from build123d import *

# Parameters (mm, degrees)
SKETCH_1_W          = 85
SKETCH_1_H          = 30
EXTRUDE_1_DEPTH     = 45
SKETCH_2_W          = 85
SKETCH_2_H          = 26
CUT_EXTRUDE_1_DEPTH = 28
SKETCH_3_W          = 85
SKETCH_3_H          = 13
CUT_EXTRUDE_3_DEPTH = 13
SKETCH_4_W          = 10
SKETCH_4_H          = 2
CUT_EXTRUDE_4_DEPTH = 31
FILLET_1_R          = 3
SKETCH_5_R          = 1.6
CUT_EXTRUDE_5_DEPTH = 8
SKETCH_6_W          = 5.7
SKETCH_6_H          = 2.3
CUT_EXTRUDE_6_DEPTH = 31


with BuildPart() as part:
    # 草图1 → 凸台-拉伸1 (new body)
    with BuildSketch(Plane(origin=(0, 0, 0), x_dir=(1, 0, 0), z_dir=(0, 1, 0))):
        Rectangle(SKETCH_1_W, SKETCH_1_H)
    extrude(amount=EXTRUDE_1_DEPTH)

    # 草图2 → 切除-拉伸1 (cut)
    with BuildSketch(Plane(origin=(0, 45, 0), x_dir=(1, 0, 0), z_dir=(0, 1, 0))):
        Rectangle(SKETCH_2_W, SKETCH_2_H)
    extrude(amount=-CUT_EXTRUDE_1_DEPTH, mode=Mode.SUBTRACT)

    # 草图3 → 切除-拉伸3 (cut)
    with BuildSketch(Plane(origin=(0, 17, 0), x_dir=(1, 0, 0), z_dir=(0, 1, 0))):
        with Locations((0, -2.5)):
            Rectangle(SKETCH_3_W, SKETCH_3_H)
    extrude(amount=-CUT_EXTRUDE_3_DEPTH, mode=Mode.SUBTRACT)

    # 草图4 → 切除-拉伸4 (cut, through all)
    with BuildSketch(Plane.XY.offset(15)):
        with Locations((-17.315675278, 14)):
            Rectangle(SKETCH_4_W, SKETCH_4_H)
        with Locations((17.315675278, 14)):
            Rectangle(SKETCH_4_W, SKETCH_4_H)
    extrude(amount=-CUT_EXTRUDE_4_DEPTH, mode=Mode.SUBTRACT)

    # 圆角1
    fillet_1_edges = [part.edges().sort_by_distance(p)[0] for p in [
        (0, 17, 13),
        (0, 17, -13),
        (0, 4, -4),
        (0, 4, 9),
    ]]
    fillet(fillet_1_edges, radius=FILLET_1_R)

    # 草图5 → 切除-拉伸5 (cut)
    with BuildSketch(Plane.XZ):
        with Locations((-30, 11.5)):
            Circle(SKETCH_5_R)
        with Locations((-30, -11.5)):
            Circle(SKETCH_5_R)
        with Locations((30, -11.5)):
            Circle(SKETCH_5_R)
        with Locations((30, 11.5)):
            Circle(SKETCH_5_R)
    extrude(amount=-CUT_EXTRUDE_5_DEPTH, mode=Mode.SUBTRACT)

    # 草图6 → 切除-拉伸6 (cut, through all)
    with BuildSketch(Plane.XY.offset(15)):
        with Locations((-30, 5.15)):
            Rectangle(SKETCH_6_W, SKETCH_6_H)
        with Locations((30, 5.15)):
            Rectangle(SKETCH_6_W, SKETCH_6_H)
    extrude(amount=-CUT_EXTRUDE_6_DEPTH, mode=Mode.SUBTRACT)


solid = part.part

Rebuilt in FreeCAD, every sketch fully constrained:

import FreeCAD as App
import Part
import Sketcher


def edges_at(feature, points):
    """Names of the edges that pass closest to the given points."""
    edges = feature.Shape.Edges
    near = lambda p: min(range(len(edges)), key=lambda i: edges[i].distToShape(Part.Vertex(*p))[0])
    return sorted({f"Edge{near(p) + 1}" for p in points})


def add_polygon(sketch, points):
    """Adds a closed chain of lines whose ends are joined by coincident constraints."""
    first, n = sketch.GeometryCount, len(points)
    for a, b in zip(points, points[1:] + points[:1]):
        sketch.addGeometry(Part.LineSegment(App.Vector(*a, 0), App.Vector(*b, 0)), False)
    for i in range(n):
        sketch.addConstraint(Sketcher.Constraint("Coincident", first + i, 2, first + (i + 1) % n, 1))

doc = App.newDocument("Part")
body = doc.addObject("PartDesign::Body", "Body")

# Sketch on XZ plane
sketch1 = body.newObject("Sketcher::SketchObject", "Sketch")
sketch1.AttachmentSupport = (doc.getObject("XZ_Plane"), [""])
sketch1.MapMode = "FlatFace"
add_polygon(sketch1, [(-42.5, -15), (-42.5, 15), (42.5, 15), (42.5, -15)])  # lines 0-3
sketch1.addConstraint(Sketcher.Constraint("Vertical", 0))
sketch1.addConstraint(Sketcher.Constraint("Horizontal", 1))
sketch1.addConstraint(Sketcher.Constraint("Vertical", 2))
sketch1.addConstraint(Sketcher.Constraint("Horizontal", 3))
sketch1.addConstraint(Sketcher.Constraint("Symmetric", 0, 2, 2, 2, -1, 1))
sketch1.addConstraint(Sketcher.Constraint("DistanceX", 1, 1, 1, 2, 85.0))
sketch1.addConstraint(Sketcher.Constraint("DistanceY", 0, 1, 0, 2, 30.0))
pad1 = body.newObject("PartDesign::Pad", "Pad")
pad1.Profile = sketch1
pad1.Length = 45
pad1.Reversed = True

# Sketch on XZ plane
sketch2 = body.newObject("Sketcher::SketchObject", "Sketch001")
sketch2.AttachmentSupport = (doc.getObject("XZ_Plane"), [""])
sketch2.MapMode = "FlatFace"
sketch2.AttachmentOffset = App.Placement(App.Vector(0, 0, -45), App.Rotation())
add_polygon(sketch2, [(-42.5, -13), (-42.5, 13), (42.5, 13), (42.5, -13)])  # lines 0-3
sketch2.addConstraint(Sketcher.Constraint("Vertical", 0))
sketch2.addConstraint(Sketcher.Constraint("Horizontal", 1))
sketch2.addConstraint(Sketcher.Constraint("Vertical", 2))
sketch2.addConstraint(Sketcher.Constraint("Horizontal", 3))
sketch2.addConstraint(Sketcher.Constraint("Symmetric", 0, 2, 2, 2, -1, 1))
sketch2.addConstraint(Sketcher.Constraint("DistanceX", 1, 1, 1, 2, 85.0))
sketch2.addConstraint(Sketcher.Constraint("DistanceY", 0, 1, 0, 2, 26.0))
pocket1 = body.newObject("PartDesign::Pocket", "Pocket")
pocket1.Profile = sketch2
pocket1.Length = 28
pocket1.Reversed = True

# Sketch on XZ plane
sketch3 = body.newObject("Sketcher::SketchObject", "Sketch002")
sketch3.AttachmentSupport = (doc.getObject("XZ_Plane"), [""])
sketch3.MapMode = "FlatFace"
sketch3.AttachmentOffset = App.Placement(App.Vector(0, 0, -17), App.Rotation())
add_polygon(sketch3, [(-42.5, -4), (-42.5, 9), (42.5, 9), (42.5, -4)])  # lines 0-3
sketch3.addConstraint(Sketcher.Constraint("Vertical", 0))
sketch3.addConstraint(Sketcher.Constraint("Horizontal", 1))
sketch3.addConstraint(Sketcher.Constraint("Vertical", 2))
sketch3.addConstraint(Sketcher.Constraint("Horizontal", 3))
sketch3.addConstraint(Sketcher.Constraint("DistanceX", 1, 1, 1, 2, 85.0))
sketch3.addConstraint(Sketcher.Constraint("DistanceY", 0, 1, 0, 2, 13.0))
sketch3.addConstraint(Sketcher.Constraint("DistanceY", -1, 1, 0, 2, 9.0))
sketch3.addConstraint(Sketcher.Constraint("DistanceX", 0, 2, -1, 1, 42.5))
pocket2 = body.newObject("PartDesign::Pocket", "Pocket001")
pocket2.Profile = sketch3
pocket2.Length = 13
pocket2.Reversed = True

# Sketch on XY plane
sketch4 = body.newObject("Sketcher::SketchObject", "Sketch003")
sketch4.AttachmentSupport = (doc.getObject("XY_Plane"), [""])
sketch4.MapMode = "FlatFace"
sketch4.AttachmentOffset = App.Placement(App.Vector(0, 0, 15), App.Rotation())
add_polygon(sketch4, [(-22.315675, 15), (-22.315675, 13), (-12.315675, 13), (-12.315675, 15)])  # lines 0-3
add_polygon(sketch4, [(12.315675, 15), (12.315675, 13), (22.315675, 13), (22.315675, 15)])  # lines 4-7
sketch4.addConstraint(Sketcher.Constraint("Vertical", 0))
sketch4.addConstraint(Sketcher.Constraint("Horizontal", 1))
sketch4.addConstraint(Sketcher.Constraint("Vertical", 2))
sketch4.addConstraint(Sketcher.Constraint("Horizontal", 3))
sketch4.addConstraint(Sketcher.Constraint("Vertical", 4))
sketch4.addConstraint(Sketcher.Constraint("Horizontal", 5))
sketch4.addConstraint(Sketcher.Constraint("Vertical", 6))
sketch4.addConstraint(Sketcher.Constraint("Horizontal", 7))
sketch4.addConstraint(Sketcher.Constraint("Symmetric", 1, 2, 4, 2, -2))
sketch4.addConstraint(Sketcher.Constraint("Symmetric", 3, 2, 6, 2, -2))
sketch4.addConstraint(Sketcher.Constraint("DistanceX", 1, 1, 1, 2, 10.0))
sketch4.addConstraint(Sketcher.Constraint("DistanceY", 0, 2, 0, 1, 2.0))
sketch4.addConstraint(Sketcher.Constraint("DistanceY", -1, 1, 0, 2, 13.0))
sketch4.addConstraint(Sketcher.Constraint("DistanceX", 1, 2, 4, 2, 24.631351))
pocket3 = body.newObject("PartDesign::Pocket", "Pocket002")
pocket3.Profile = sketch4
pocket3.Type = "ThroughAll"
doc.recompute()

fillet = body.newObject("PartDesign::Fillet", "Fillet")
fillet.Base = (pocket3, edges_at(pocket3, [
    (0, 17, 13),
    (0, 17, -13),
    (0, 4, -4),
    (0, 4, 9),
]))
fillet.Radius = 3

# Sketch on XZ plane
sketch5 = body.newObject("Sketcher::SketchObject", "Sketch004")
sketch5.AttachmentSupport = (doc.getObject("XZ_Plane"), [""])
sketch5.MapMode = "FlatFace"
sketch5.addGeometry(Part.Circle(App.Vector(-30, 11.5, 0), App.Vector(0, 0, 1), 1.6), False)
sketch5.addGeometry(Part.Circle(App.Vector(-30, -11.5, 0), App.Vector(0, 0, 1), 1.6), False)
sketch5.addGeometry(Part.Circle(App.Vector(30, -11.5, 0), App.Vector(0, 0, 1), 1.6), False)
sketch5.addGeometry(Part.Circle(App.Vector(30, 11.5, 0), App.Vector(0, 0, 1), 1.6), False)
sketch5.addConstraint(Sketcher.Constraint("Equal", 0, 1))
sketch5.addConstraint(Sketcher.Constraint("Equal", 1, 2))
sketch5.addConstraint(Sketcher.Constraint("Equal", 2, 3))
sketch5.addConstraint(Sketcher.Constraint("Symmetric", 0, 3, 2, 3, -1, 1))
sketch5.addConstraint(Sketcher.Constraint("Symmetric", 1, 3, 3, 3, -1, 1))
sketch5.addConstraint(Sketcher.Constraint("Symmetric", 1, 3, 2, 3, -2))
sketch5.addConstraint(Sketcher.Constraint("Diameter", 0, 3.2))
sketch5.addConstraint(Sketcher.Constraint("DistanceX", 0, 3, -1, 1, 30.0))
sketch5.addConstraint(Sketcher.Constraint("DistanceY", 1, 3, 0, 3, 23.0))
pocket4 = body.newObject("PartDesign::Pocket", "Pocket003")
pocket4.Profile = sketch5
pocket4.Length = 8

# Sketch on XY plane
sketch6 = body.newObject("Sketcher::SketchObject", "Sketch005")
sketch6.AttachmentSupport = (doc.getObject("XY_Plane"), [""])
sketch6.MapMode = "FlatFace"
sketch6.AttachmentOffset = App.Placement(App.Vector(0, 0, 15), App.Rotation())
add_polygon(sketch6, [(-32.85, 6.3), (-32.85, 4), (-27.15, 4), (-27.15, 6.3)])  # lines 0-3
add_polygon(sketch6, [(27.15, 6.3), (27.15, 4), (32.85, 4), (32.85, 6.3)])  # lines 4-7
sketch6.addConstraint(Sketcher.Constraint("Vertical", 0))
sketch6.addConstraint(Sketcher.Constraint("Horizontal", 1))
sketch6.addConstraint(Sketcher.Constraint("Vertical", 2))
sketch6.addConstraint(Sketcher.Constraint("Horizontal", 3))
sketch6.addConstraint(Sketcher.Constraint("Vertical", 4))
sketch6.addConstraint(Sketcher.Constraint("Horizontal", 5))
sketch6.addConstraint(Sketcher.Constraint("Vertical", 6))
sketch6.addConstraint(Sketcher.Constraint("Horizontal", 7))
sketch6.addConstraint(Sketcher.Constraint("Symmetric", 1, 2, 4, 2, -2))
sketch6.addConstraint(Sketcher.Constraint("Symmetric", 3, 2, 6, 2, -2))
sketch6.addConstraint(Sketcher.Constraint("DistanceX", 1, 1, 1, 2, 5.7))
sketch6.addConstraint(Sketcher.Constraint("DistanceY", 0, 2, 0, 1, 2.3))
sketch6.addConstraint(Sketcher.Constraint("DistanceY", -1, 1, 0, 2, 4.0))
sketch6.addConstraint(Sketcher.Constraint("DistanceX", 0, 2, 4, 2, 60.0))
pocket5 = body.newObject("PartDesign::Pocket", "Pocket004")
pocket5.Profile = sketch6
pocket5.Type = "ThroughAll"

doc.recompute()
